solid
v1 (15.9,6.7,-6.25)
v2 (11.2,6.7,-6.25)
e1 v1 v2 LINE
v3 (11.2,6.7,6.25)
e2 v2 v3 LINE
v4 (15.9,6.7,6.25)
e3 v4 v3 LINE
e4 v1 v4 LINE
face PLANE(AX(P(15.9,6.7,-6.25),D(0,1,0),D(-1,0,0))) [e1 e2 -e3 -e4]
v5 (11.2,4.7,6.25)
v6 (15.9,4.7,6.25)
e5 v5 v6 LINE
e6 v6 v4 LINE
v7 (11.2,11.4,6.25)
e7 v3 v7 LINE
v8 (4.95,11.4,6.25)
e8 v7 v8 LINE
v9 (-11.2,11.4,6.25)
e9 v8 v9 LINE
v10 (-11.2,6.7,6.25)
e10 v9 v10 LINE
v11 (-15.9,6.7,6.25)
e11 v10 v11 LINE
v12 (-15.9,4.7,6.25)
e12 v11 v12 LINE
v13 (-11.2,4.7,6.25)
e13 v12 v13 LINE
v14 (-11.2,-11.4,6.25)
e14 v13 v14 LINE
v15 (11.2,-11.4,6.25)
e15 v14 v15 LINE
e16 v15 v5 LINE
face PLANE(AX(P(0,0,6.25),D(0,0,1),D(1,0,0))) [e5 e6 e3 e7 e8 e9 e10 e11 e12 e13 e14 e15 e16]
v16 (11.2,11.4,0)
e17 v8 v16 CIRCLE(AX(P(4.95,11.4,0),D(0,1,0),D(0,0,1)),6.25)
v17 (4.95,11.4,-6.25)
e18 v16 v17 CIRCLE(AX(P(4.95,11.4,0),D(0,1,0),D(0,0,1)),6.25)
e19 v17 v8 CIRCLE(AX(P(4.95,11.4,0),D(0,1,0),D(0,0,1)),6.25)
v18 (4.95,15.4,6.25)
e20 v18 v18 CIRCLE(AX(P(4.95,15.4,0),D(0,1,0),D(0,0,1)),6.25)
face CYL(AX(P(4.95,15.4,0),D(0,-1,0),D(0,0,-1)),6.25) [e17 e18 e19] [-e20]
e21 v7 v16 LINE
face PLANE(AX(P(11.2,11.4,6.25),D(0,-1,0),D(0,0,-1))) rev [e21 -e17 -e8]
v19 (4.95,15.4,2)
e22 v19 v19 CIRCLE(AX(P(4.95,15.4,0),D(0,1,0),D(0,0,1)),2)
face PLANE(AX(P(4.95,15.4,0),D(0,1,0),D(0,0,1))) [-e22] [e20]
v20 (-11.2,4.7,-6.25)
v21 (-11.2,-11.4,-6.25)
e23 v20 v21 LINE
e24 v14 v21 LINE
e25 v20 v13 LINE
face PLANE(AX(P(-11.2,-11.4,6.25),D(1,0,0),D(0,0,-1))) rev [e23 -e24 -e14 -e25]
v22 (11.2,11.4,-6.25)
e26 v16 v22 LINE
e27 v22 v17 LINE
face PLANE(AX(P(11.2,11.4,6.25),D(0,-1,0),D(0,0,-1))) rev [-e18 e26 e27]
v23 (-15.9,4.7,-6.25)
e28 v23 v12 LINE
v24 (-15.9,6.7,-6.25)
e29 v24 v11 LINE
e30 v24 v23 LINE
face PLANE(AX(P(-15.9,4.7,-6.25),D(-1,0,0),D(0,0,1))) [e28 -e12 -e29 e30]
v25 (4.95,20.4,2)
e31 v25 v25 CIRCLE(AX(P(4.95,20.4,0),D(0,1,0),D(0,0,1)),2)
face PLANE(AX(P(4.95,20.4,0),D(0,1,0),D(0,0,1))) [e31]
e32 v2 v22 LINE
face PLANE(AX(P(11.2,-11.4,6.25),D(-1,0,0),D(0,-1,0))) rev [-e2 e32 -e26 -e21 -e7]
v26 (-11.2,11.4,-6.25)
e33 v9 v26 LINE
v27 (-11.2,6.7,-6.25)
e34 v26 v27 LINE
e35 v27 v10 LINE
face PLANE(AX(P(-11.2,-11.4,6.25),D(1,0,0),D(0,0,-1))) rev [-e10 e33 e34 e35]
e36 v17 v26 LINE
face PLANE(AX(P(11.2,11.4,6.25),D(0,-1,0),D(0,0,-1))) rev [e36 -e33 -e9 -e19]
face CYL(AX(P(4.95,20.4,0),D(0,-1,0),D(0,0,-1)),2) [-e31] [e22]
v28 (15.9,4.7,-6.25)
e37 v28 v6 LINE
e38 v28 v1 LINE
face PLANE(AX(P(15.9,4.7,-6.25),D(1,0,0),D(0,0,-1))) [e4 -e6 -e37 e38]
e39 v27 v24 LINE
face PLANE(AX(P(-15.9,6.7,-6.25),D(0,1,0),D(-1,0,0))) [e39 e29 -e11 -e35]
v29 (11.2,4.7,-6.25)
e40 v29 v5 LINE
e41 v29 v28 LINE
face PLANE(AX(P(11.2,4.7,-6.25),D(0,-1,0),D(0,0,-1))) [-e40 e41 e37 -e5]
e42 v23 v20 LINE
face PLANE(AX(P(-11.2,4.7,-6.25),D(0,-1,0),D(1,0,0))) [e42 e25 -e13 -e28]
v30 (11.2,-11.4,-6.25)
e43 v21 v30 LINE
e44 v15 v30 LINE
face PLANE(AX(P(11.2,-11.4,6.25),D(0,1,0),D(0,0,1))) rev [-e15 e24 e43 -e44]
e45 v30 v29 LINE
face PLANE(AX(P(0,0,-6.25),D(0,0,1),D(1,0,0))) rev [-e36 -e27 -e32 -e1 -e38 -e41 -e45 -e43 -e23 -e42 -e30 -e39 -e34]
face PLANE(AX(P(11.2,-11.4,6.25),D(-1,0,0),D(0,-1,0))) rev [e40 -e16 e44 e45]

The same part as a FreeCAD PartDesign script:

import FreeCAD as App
import Part
import Sketcher


def add_polygon(sketch, points):
    """Adds a closed chain of lines whose ends are joined by coincident constraints."""
    first, n = sketch.GeometryCount, len(points)
    for a, b in zip(points, points[1:] + points[:1]):
        sketch.addGeometry(Part.LineSegment(App.Vector(*a, 0), App.Vector(*b, 0)), False)
    for i in range(n):
        sketch.addConstraint(Sketcher.Constraint("Coincident", first + i, 2, first + (i + 1) % n, 1))

doc = App.newDocument("Part")
params = doc.addObject("Spreadsheet::Sheet", "Params")
for row, (alias, value) in enumerate([
    ("sketch1_width", "22.4 mm"),
    ("sketch1_height", "22.8 mm"),
    ("pad1_length", "12.5 mm"),
    ("sketch2_height", "2 mm"),
    ("sketch2_width", "4.7 mm"),
    ("pad2_length", "12.5 mm"),
    ("sketch3_diameter", "12.5 mm"),
    ("pad3_length", "4 mm"),
    ("sketch4_diameter", "4 mm"),
    ("pad4_length", "5 mm"),
], start=1):
    params.set(f"A{row}", alias)
    params.set(f"B{row}", "=" + value)
    params.setAlias(f"B{row}", alias)

body = doc.addObject("PartDesign::Body", "Body")

sketch1 = doc.addObject("Sketcher::SketchObject", "Sketch")
body.addObject(sketch1)
sketch1.AttachmentSupport = (doc.XY_Plane, [""])
sketch1.MapMode = "FlatFace"
add_polygon(sketch1, [(-11, 11), (-11, -11), (11, -11), (11, 11)])
sketch1.addConstraint([
    Sketcher.Constraint("Vertical", 0),
    Sketcher.Constraint("Horizontal", 1),
    Sketcher.Constraint("Vertical", 2),
    Sketcher.Constraint("Horizontal", 3),
    Sketcher.Constraint("Symmetric", 0, 2, 2, 2, -1, 1),
    Sketcher.Constraint("DistanceX", 1, 1, 1, 2, 22.4),
    Sketcher.Constraint("DistanceY", 0, 2, 0, 1, 22.8),
])
sketch1.setExpression("Constraints[9]", "Params.sketch1_width")
sketch1.setExpression("Constraints[10]", "Params.sketch1_height")
pad1 = doc.addObject("PartDesign::Pad", "Pad")
body.addObject(pad1)
pad1.Profile = sketch1
pad1.setExpression("Length", "Params.pad1_length")
pad1.Midplane = True

sketch2 = doc.addObject("Sketcher::SketchObject", "Sketch001")
body.addObject(sketch2)
sketch2.AttachmentSupport = (doc.XY_Plane, [""])
sketch2.MapMode = "FlatFace"
sketch2.AttachmentOffset = App.Placement(App.Vector(0, 0, 6.25), App.Rotation())
add_polygon(sketch2, [(-15.9, 6.7), (-15.9, 4.7), (-11.2, 4.7), (-11.2, 6.7)])
add_polygon(sketch2, [(11.2, 6.7), (11.2, 4.7), (15.9, 4.7), (15.9, 6.7)])
sketch2.addConstraint([
    Sketcher.Constraint("Vertical", 0),
    Sketcher.Constraint("Horizontal", 1),
    Sketcher.Constraint("Vertical", 2),
    Sketcher.Constraint("Horizontal", 3),
    Sketcher.Constraint("Vertical", 4),
    Sketcher.Constraint("Horizontal", 5),
    Sketcher.Constraint("Vertical", 6),
    Sketcher.Constraint("Horizontal", 7),
    Sketcher.Constraint("Symmetric", 1, 2, 4, 2, -2),
    Sketcher.Constraint("Symmetric", 3, 2, 6, 2, -2),
    Sketcher.Constraint("DistanceY", 0, 2, 0, 1, 2.0),
    Sketcher.Constraint("DistanceX", 1, 1, 1, 2, 4.7),
    Sketcher.Constraint("DistanceX", 0, 2, -1, 1, 15.9),
    Sketcher.Constraint("DistanceY", -1, 1, 0, 2, 4.7),
])
sketch2.setExpression("Constraints[18]", "Params.sketch2_height")
sketch2.setExpression("Constraints[19]", "Params.sketch2_width")
pad2 = doc.addObject("PartDesign::Pad", "Pad001")
body.addObject(pad2)
pad2.Profile = sketch2
pad2.setExpression("Length", "Params.pad2_length")
pad2.Reversed = True

sketch3 = doc.addObject("Sketcher::SketchObject", "Sketch002")
body.addObject(sketch3)
sketch3.AttachmentSupport = (doc.XZ_Plane, [""])
sketch3.MapMode = "FlatFace"
sketch3.AttachmentOffset = App.Placement(App.Vector(0, 0, -11.4), App.Rotation())
sketch3.addGeometry(Part.Circle(App.Vector(5, 0, 0), App.Vector(0, 0, 1), 6), False)
sketch3.addConstraint([
    Sketcher.Constraint("PointOnObject", 0, 3, -1),
    Sketcher.Constraint("Diameter", 0, 12.5),
    Sketcher.Constraint("DistanceX", -1, 1, 0, 3, 4.95),
])
sketch3.setExpression("Constraints[1]", "Params.sketch3_diameter")
pad3 = doc.addObject("PartDesign::Pad", "Pad002")
body.addObject(pad3)
pad3.Profile = sketch3
pad3.setExpression("Length", "Params.pad3_length")
pad3.Reversed = True

sketch4 = doc.addObject("Sketcher::SketchObject", "Sketch003")
body.addObject(sketch4)
sketch4.AttachmentSupport = (doc.XZ_Plane, [""])
sketch4.MapMode = "FlatFace"
sketch4.AttachmentOffset = App.Placement(App.Vector(0, 0, -15.4), App.Rotation())
sketch4.addGeometry(Part.Circle(App.Vector(5, 0, 0), App.Vector(0, 0, 1), 2), False)
sketch4.addConstraint([
    Sketcher.Constraint("PointOnObject", 0, 3, -1),
    Sketcher.Constraint("Diameter", 0, 4.0),
    Sketcher.Constraint("DistanceX", -1, 1, 0, 3, 4.95),
])
sketch4.setExpression("Constraints[1]", "Params.sketch4_diameter")
pad4 = doc.addObject("PartDesign::Pad", "Pad003")
body.addObject(pad4)
pad4.Profile = sketch4
pad4.setExpression("Length", "Params.pad4_length")
pad4.Reversed = True

doc.recompute()
